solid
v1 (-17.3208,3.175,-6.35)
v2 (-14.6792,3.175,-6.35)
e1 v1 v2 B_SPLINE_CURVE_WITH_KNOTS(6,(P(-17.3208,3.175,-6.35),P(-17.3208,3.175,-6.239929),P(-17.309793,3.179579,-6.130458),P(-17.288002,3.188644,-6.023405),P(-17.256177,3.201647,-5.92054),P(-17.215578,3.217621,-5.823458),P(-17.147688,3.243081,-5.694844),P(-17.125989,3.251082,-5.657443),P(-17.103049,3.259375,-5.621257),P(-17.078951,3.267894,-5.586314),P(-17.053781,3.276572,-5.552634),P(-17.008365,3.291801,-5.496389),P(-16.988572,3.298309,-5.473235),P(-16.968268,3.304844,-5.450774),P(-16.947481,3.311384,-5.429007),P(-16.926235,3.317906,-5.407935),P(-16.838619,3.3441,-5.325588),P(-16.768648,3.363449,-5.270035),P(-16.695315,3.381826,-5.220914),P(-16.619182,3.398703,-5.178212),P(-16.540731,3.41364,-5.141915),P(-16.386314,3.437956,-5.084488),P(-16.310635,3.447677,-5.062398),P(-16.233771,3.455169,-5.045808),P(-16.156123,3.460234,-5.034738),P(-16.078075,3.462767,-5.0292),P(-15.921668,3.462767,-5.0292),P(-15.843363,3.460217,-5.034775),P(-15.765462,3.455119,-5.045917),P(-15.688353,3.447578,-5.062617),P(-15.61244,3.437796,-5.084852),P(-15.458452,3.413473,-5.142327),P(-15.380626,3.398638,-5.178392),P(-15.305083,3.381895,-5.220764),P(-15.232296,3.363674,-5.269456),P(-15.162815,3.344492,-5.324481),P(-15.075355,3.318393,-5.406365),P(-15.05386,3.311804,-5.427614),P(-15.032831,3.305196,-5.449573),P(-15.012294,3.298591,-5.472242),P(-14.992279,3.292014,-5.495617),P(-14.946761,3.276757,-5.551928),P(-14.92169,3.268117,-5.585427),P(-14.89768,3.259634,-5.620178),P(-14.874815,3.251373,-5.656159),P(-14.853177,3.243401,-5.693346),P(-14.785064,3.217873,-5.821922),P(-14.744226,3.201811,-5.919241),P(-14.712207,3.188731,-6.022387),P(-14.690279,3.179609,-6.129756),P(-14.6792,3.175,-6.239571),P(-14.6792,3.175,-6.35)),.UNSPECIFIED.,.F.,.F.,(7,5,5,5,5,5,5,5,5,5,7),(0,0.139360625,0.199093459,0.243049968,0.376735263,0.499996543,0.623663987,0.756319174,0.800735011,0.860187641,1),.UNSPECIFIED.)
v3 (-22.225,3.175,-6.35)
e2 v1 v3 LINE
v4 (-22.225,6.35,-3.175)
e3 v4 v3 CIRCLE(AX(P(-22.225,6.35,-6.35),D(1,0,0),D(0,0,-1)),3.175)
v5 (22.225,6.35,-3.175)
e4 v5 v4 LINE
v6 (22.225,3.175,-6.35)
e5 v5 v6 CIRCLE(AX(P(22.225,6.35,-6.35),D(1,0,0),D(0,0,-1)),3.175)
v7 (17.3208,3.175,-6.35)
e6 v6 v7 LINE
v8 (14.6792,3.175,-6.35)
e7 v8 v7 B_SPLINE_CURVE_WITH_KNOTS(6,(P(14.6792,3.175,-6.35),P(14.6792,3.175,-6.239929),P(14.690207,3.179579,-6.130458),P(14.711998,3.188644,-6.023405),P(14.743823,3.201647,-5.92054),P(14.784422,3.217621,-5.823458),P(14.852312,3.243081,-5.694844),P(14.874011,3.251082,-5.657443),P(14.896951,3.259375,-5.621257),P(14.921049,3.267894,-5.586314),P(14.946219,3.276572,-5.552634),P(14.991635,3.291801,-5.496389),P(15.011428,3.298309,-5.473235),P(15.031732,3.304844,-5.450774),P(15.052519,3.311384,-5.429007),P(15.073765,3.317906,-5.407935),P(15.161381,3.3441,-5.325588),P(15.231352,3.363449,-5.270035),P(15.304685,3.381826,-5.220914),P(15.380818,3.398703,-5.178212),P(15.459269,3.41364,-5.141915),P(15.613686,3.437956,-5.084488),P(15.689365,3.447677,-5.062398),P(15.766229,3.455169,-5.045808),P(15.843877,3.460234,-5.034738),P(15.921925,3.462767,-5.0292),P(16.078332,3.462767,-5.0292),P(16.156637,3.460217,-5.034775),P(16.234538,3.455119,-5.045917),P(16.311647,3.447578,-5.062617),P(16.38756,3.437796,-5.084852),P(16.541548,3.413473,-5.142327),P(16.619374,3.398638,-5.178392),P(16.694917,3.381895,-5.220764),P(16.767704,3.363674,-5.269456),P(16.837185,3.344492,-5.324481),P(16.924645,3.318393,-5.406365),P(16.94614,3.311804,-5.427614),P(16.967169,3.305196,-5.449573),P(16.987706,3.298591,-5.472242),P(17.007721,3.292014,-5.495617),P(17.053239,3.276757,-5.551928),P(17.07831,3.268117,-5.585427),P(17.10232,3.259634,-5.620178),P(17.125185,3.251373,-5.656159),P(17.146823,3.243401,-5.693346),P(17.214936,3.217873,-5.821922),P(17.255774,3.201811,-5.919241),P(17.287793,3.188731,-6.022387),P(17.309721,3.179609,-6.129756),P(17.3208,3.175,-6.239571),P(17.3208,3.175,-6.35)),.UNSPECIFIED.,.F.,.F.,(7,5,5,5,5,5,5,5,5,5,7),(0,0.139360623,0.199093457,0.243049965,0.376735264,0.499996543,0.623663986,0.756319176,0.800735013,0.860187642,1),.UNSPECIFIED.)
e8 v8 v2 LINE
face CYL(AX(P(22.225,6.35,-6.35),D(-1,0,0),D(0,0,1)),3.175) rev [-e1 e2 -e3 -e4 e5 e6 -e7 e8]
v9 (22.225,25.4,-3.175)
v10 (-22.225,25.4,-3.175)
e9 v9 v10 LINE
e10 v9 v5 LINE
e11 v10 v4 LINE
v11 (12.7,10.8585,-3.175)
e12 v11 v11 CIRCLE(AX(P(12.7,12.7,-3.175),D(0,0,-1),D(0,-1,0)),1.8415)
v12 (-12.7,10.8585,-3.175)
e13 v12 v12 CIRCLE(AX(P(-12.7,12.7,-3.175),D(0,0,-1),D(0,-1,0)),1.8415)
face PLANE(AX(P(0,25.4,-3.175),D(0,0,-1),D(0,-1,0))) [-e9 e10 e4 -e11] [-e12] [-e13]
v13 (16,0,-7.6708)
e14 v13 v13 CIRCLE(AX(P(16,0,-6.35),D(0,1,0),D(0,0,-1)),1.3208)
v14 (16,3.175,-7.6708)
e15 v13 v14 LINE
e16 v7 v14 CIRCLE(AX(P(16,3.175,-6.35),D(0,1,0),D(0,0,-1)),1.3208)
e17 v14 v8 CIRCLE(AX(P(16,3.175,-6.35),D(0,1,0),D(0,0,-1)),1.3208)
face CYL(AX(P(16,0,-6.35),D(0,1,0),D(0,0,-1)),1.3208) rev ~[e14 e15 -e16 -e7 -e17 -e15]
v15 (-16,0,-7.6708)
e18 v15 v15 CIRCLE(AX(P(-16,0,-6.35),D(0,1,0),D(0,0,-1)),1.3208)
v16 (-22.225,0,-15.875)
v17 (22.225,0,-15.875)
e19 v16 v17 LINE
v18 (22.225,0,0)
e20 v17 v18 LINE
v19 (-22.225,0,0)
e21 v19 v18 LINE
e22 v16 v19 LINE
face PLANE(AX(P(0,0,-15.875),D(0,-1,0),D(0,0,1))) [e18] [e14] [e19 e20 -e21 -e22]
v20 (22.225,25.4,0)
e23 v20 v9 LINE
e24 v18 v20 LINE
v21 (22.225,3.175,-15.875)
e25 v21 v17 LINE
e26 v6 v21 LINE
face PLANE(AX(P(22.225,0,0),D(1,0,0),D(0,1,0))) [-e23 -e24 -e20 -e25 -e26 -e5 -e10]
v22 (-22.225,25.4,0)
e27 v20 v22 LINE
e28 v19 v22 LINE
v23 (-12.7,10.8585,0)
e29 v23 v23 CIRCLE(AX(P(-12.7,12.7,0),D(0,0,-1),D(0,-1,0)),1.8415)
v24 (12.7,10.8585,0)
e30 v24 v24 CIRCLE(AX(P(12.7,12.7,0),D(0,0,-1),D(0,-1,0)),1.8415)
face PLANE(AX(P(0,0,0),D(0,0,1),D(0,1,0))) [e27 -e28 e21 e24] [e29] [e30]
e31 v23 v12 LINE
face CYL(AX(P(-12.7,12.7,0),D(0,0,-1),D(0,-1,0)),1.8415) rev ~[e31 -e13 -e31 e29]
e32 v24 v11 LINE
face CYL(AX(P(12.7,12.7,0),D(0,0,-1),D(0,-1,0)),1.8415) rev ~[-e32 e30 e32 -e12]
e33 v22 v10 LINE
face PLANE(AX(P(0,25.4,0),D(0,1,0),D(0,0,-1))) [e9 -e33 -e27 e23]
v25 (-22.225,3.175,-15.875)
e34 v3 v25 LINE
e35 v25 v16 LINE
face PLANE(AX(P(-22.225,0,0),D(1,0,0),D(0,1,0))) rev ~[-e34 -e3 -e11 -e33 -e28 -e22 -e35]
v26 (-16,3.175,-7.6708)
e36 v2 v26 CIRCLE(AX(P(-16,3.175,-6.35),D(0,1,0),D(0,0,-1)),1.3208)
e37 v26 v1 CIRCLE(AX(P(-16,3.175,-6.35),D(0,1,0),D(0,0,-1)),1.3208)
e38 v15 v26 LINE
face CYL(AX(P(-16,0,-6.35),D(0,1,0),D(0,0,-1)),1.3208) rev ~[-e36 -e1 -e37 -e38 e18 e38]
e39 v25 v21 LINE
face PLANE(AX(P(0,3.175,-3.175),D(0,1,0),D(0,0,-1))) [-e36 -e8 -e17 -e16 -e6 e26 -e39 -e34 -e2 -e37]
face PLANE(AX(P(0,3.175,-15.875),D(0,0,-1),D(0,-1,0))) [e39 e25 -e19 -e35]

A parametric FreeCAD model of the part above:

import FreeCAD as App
import Part
import Sketcher
Q = App.Units.Quantity


def edges_at(feature, points):
    """Names of the edges that pass closest to the given points."""
    edges = feature.Shape.Edges
    near = lambda p: min(range(len(edges)), key=lambda i: edges[i].distToShape(Part.Vertex(*p))[0])
    return sorted({f"Edge{near(p) + 1}" for p in points})


def add_polygon(sketch, points):
    """Adds a closed chain of lines whose ends are joined by coincident constraints."""
    first, n = sketch.GeometryCount, len(points)
    for a, b in zip(points, points[1:] + points[:1]):
        sketch.addGeometry(Part.LineSegment(App.Vector(*a, 0), App.Vector(*b, 0)), False)
    for i in range(n):
        sketch.addConstraint(Sketcher.Constraint("Coincident", first + i, 2, first + (i + 1) % n, 1))

doc = App.newDocument("Part")
params = doc.addObject("Spreadsheet::Sheet", "Params")
for row, (alias, value) in enumerate([
    ("sketch1_width", "1 in"),
    ("sketch1_width2", "0.125 in"),
    ("sketch1_height", "0.625 in"),
    ("pad1_length", "1.75 in"),
    ("fillet_radius", "0.125 in"),
    ("sketch2_diameter", "0.104 in"),
    ("hole_diameter", "0.104 in"),
    ("sketch3_diameter", "0.145 in"),
    ("hole2_diameter", "0.145 in"),
], start=1):
    params.set(f"A{row}", alias)
    params.set(f"B{row}", "=" + value)
    params.setAlias(f"B{row}", alias)

body = doc.addObject("PartDesign::Body", "Body")

# Sketch on YZ plane
sketch1 = body.newObject("Sketcher::SketchObject", "Sketch")
sketch1.AttachmentSupport = (doc.getObject("YZ_Plane"), [""])
sketch1.MapMode = "FlatFace"
add_polygon(sketch1, [(25.4, 0), (0, 0), (0, -15.9), (3.2, -15.9), (3.2, -3.2), (25.4, -3.2)])  # lines 0-5
sketch1.addConstraint([
    Sketcher.Constraint("Horizontal", 0),
    Sketcher.Constraint("Vertical", 1),
    Sketcher.Constraint("Horizontal", 2),
    Sketcher.Constraint("Vertical", 3),
    Sketcher.Constraint("Horizontal", 4),
    Sketcher.Constraint("Vertical", 5),
    Sketcher.Constraint("Coincident", 0, 2, -1, 1),
    Sketcher.Constraint("Equal", 2, 5),
    Sketcher.Constraint("DistanceX", 0, 2, 0, 1, Q("1 in")),
    Sketcher.Constraint("DistanceX", 2, 1, 2, 2, Q("0.125 in")),
    Sketcher.Constraint("DistanceY", 1, 2, 1, 1, Q("0.625 in")),
])
sketch1.setExpression("Constraints[14]", "Params.sketch1_width")
sketch1.setExpression("Constraints[15]", "Params.sketch1_width2")
sketch1.setExpression("Constraints[16]", "Params.sketch1_height")
pad1 = body.newObject("PartDesign::Pad", "Pad")
pad1.Profile = sketch1
pad1.setExpression("Length", "Params.pad1_length")
pad1.Midplane = True
doc.recompute()

fillet = body.newObject("PartDesign::Fillet", "Fillet")
fillet.Base = (pad1, edges_at(pad1, [(0, 3.175, -3.175)]))
fillet.setExpression("Radius", "Params.fillet_radius")

# Sketch on XZ plane
sketch2 = body.newObject("Sketcher::SketchObject", "Sketch001")
sketch2.AttachmentSupport = (doc.getObject("XZ_Plane"), [""])
sketch2.MapMode = "FlatFace"
sketch2.addGeometry([
    Part.Circle(App.Vector(16, -6.3, 0), App.Vector(0, 0, 1), 1.3),
    Part.Circle(App.Vector(-16, -6.3, 0), App.Vector(0, 0, 1), 1.3),
], False)
sketch2.addConstraint([
    Sketcher.Constraint("Equal", 0, 1),
    Sketcher.Constraint("Symmetric", 0, 3, 1, 3, -2),
    Sketcher.Constraint("Diameter", 0, Q("0.104 in")),
    Sketcher.Constraint("DistanceY", 0, 3, -1, 1, Q("0.25 in")),
    Sketcher.Constraint("DistanceX", -1, 1, 0, 3, 16.0),
])
sketch2.setExpression("Constraints[2]", "Params.sketch2_diameter")
doc.recompute()
hole = body.newObject("PartDesign::Hole", "Hole")
hole.Profile = sketch2
hole.ThreadType = "None"
hole.setExpression("Diameter", "Params.hole_diameter")
hole.DepthType = "ThroughAll"

# Sketch on XY plane
sketch3 = body.newObject("Sketcher::SketchObject", "Sketch002")
sketch3.AttachmentSupport = (doc.getObject("XY_Plane"), [""])
sketch3.MapMode = "FlatFace"
sketch3.addGeometry([
    Part.Circle(App.Vector(12.7, 12.7, 0), App.Vector(0, 0, 1), 1.8),
    Part.Circle(App.Vector(-12.7, 12.7, 0), App.Vector(0, 0, 1), 1.8),
], False)
sketch3.addConstraint([
    Sketcher.Constraint("Equal", 0, 1),
    Sketcher.Constraint("Symmetric", 0, 3, 1, 3, -2),
    Sketcher.Constraint("Diameter", 0, Q("0.145 in")),
    Sketcher.Constraint("DistanceX", 1, 3, 0, 3, Q("1 in")),
    Sketcher.Constraint("DistanceY", -1, 1, 0, 3, Q("0.5 in")),
])
sketch3.setExpression("Constraints[2]", "Params.sketch3_diameter")
doc.recompute()
hole2 = body.newObject("PartDesign::Hole", "Hole001")
hole2.Profile = sketch3
hole2.ThreadType = "None"
hole2.setExpression("Diameter", "Params.hole2_diameter")
hole2.DepthType = "ThroughAll"

doc.recompute()
